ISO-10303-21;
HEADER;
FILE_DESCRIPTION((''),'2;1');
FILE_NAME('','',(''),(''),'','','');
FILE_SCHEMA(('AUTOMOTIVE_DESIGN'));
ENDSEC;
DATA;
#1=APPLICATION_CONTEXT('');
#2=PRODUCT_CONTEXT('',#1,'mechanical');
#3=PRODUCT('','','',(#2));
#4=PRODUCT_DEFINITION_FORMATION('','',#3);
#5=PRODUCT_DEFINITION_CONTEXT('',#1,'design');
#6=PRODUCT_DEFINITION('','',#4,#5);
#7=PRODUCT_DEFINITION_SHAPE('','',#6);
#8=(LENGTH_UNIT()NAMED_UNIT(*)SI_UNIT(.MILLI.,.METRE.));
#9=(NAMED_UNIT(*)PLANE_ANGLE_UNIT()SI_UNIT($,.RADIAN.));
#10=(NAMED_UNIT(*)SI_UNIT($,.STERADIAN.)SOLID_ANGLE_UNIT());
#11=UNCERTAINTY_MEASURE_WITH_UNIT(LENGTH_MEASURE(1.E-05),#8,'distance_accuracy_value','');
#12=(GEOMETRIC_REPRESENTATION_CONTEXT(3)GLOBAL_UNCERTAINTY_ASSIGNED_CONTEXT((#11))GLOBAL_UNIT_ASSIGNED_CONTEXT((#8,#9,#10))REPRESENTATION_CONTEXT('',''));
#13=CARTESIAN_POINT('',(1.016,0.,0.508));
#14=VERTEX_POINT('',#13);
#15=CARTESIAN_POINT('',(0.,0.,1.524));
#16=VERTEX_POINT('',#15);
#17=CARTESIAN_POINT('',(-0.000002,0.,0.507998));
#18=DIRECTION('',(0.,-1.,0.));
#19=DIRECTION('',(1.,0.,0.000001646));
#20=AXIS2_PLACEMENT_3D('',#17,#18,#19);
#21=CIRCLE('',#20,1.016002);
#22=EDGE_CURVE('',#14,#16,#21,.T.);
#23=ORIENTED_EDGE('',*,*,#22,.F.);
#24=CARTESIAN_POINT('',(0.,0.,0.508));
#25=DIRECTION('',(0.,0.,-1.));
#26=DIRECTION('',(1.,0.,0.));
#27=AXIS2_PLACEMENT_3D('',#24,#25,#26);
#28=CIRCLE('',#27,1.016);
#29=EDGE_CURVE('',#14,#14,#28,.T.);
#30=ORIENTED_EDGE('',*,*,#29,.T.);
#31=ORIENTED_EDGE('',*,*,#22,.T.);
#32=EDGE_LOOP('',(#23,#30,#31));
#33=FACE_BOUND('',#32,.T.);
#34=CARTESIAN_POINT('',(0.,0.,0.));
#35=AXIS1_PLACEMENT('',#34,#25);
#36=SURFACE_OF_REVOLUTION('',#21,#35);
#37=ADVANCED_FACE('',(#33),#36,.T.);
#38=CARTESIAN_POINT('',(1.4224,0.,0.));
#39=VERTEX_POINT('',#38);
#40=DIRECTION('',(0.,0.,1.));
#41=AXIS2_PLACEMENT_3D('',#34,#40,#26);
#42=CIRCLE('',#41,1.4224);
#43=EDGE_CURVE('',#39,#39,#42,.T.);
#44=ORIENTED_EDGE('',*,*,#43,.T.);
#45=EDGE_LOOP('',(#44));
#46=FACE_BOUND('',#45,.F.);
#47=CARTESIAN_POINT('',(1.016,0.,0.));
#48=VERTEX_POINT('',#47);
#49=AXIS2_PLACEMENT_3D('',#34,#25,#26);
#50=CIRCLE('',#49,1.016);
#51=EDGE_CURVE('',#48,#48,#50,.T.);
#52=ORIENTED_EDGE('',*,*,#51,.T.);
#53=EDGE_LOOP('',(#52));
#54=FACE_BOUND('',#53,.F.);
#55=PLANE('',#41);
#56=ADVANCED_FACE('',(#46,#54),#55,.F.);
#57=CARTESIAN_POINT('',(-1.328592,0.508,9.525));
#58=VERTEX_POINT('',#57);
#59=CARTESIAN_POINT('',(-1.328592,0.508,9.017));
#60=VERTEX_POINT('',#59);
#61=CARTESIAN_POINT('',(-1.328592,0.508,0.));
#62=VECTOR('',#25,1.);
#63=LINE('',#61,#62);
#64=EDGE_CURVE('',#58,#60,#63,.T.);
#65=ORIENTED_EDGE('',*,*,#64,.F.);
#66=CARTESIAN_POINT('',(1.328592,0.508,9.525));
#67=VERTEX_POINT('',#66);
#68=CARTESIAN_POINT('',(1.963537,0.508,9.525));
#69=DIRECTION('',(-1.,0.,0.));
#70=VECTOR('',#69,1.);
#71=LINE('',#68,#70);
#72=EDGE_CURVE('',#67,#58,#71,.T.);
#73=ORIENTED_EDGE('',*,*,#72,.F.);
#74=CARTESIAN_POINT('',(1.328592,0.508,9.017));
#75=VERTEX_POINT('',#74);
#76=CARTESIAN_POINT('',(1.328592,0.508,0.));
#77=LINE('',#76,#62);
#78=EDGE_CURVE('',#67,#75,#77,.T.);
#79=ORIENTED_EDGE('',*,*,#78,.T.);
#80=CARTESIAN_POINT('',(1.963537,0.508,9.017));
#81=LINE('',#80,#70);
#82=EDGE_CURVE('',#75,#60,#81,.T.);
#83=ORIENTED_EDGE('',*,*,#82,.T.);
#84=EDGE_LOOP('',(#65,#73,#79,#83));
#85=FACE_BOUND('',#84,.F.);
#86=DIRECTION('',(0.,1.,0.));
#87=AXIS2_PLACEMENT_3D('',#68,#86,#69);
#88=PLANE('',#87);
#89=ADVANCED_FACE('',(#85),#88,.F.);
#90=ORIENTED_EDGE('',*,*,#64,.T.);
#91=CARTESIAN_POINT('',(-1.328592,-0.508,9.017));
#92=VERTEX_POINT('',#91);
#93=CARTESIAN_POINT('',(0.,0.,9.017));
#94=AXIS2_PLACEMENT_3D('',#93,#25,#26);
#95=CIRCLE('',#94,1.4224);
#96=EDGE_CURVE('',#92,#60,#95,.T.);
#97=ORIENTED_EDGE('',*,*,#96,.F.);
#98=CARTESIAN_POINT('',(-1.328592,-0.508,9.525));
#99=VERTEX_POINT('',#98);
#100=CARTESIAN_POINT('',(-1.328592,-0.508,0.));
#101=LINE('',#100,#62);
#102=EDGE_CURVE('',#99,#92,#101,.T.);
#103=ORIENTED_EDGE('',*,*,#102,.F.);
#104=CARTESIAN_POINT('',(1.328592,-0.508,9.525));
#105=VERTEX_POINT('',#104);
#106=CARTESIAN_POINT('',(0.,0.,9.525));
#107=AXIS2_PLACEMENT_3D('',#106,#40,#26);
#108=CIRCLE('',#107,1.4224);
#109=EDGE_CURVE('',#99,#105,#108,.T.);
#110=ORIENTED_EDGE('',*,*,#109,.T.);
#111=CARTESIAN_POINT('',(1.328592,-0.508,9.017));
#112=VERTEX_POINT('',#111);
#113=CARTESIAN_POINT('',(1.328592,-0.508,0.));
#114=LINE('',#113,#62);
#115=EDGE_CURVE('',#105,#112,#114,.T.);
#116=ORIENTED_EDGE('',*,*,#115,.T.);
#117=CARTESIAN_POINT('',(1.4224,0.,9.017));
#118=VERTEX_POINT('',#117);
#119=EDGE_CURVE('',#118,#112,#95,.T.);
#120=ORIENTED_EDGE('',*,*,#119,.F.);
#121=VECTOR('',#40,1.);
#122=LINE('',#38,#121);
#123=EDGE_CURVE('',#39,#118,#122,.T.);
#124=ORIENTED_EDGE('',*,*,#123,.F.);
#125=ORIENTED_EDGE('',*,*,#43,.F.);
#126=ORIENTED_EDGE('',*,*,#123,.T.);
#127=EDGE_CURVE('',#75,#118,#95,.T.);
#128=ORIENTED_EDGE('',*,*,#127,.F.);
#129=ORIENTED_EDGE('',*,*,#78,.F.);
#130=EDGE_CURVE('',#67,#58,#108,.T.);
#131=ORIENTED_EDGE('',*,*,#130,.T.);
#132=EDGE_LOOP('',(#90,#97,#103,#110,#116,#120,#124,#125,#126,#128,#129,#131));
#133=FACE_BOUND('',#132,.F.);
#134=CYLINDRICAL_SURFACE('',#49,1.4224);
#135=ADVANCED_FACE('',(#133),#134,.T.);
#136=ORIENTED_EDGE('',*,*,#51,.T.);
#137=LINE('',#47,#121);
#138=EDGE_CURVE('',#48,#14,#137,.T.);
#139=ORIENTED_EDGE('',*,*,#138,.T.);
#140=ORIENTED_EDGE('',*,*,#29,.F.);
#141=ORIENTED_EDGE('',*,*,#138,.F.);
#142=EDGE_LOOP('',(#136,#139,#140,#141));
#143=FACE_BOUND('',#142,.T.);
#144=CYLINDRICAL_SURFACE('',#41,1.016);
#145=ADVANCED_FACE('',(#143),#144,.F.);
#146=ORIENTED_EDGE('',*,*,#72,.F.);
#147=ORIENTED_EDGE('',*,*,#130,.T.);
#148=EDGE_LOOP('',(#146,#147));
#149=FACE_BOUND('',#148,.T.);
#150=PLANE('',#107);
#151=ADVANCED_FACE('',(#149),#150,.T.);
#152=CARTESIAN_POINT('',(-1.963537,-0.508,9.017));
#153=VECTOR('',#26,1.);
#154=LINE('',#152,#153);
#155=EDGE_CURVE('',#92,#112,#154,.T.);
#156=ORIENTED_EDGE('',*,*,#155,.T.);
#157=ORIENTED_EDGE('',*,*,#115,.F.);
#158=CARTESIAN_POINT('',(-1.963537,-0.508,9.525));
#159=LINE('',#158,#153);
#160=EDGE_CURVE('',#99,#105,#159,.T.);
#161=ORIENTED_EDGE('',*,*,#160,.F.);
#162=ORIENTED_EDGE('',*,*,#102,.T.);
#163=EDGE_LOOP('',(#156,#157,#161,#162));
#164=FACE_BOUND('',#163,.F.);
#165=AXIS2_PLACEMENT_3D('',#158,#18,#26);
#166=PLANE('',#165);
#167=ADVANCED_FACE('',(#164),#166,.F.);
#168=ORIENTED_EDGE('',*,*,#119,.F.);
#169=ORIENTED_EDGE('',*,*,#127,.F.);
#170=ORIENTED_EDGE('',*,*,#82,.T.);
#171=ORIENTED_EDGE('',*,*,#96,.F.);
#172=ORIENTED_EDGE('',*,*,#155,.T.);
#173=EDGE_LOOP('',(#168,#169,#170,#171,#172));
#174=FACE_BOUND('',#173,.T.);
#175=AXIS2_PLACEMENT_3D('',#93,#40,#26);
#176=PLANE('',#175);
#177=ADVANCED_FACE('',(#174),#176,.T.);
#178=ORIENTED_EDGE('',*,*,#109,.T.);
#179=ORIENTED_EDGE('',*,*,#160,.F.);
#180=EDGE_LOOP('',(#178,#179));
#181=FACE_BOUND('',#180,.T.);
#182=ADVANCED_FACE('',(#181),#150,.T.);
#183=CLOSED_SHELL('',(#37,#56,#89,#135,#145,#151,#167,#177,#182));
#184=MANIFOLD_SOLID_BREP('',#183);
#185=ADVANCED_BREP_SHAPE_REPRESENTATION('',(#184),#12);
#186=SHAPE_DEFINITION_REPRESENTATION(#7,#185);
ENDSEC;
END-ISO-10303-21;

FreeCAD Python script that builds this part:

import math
import FreeCAD as App
import Part
import Sketcher
from FreeCAD import Vector
Q = App.Units.Quantity

doc = App.newDocument("Part")
body = doc.addObject("PartDesign::Body", "Body")

sketch1 = body.newObject("Sketcher::SketchObject", "Sketch")
sketch1.AttachmentSupport = (doc.getObject("XY_Plane"), [""])
sketch1.MapMode = "FlatFace"
sketch1.addGeometry(Part.Circle(Vector(0, 0, 0), Vector(0, 0, 1), 1.4), False)
sketch1.addConstraint(Sketcher.Constraint("Coincident", 0, 3, -1, 1))
sketch1.addConstraint(Sketcher.Constraint("Diameter", 0, Q("0.112 in")))
pad1 = body.newObject("PartDesign::Pad", "Pad")
pad1.Profile = sketch1
pad1.Length = Q("0.375 in")

sketch2 = body.newObject("Sketcher::SketchObject", "Sketch001")
sketch2.AttachmentSupport = (doc.getObject("XZ_Plane"), [""])
sketch2.MapMode = "FlatFace"
sketch2.addGeometry(Part.LineSegment(Vector(0, 1.5, 0), Vector(0, 0, 0)), False)
sketch2.addGeometry(Part.LineSegment(Vector(0, 0, 0), Vector(1, 0, 0)), False)
sketch2.addGeometry(Part.LineSegment(Vector(1, 0, 0), Vector(1, 0.5, 0)), False)
sketch2.addGeometry(Part.ArcOfCircle(Part.Circle(Vector(0, 0.5, 0), Vector(0, 0, 1), 1), math.radians(0), math.radians(90)), False)
sketch2.addConstraint(Sketcher.Constraint("Coincident", 0, 2, 1, 1))
sketch2.addConstraint(Sketcher.Constraint("Coincident", 1, 2, 2, 1))
sketch2.addConstraint(Sketcher.Constraint("Tangent", 2, 2, 3, 1))
sketch2.addConstraint(Sketcher.Constraint("Coincident", 3, 2, 0, 1))
sketch2.addConstraint(Sketcher.Constraint("Vertical", 0))
sketch2.addConstraint(Sketcher.Constraint("Horizontal", 1))
sketch2.addConstraint(Sketcher.Constraint("Vertical", 2))
sketch2.addConstraint(Sketcher.Constraint("Coincident", 0, 2, -1, 1))
sketch2.addConstraint(Sketcher.Constraint("PointOnObject", 3, 3, -2))
sketch2.addConstraint(Sketcher.Constraint("Radius", 3, Q("0.0400001 in")))
sketch2.addConstraint(Sketcher.Constraint("DistanceY", 0, 2, 0, 1, Q("0.06 in")))
groove = body.newObject("PartDesign::Groove", "Groove")
groove.Profile = sketch2
groove.ReferenceAxis = (sketch2, ["V_Axis"])
groove.Angle = 360

sketch3 = body.newObject("Sketcher::SketchObject", "Sketch002")
sketch3.AttachmentSupport = (doc.getObject("XY_Plane"), [""])
sketch3.MapMode = "FlatFace"
sketch3.AttachmentOffset = App.Placement(Vector(0, 0, 0.375 * 25.4), App.Rotation())
sketch3.addGeometry(Part.LineSegment(Vector(2, 0.5, 0), Vector(-2, 0.5, 0)), False)
sketch3.addGeometry(Part.LineSegment(Vector(-2, 0.5, 0), Vector(-2, -0.5, 0)), False)
sketch3.addGeometry(Part.LineSegment(Vector(-2, -0.5, 0), Vector(2, -0.5, 0)), False)
sketch3.addGeometry(Part.LineSegment(Vector(2, -0.5, 0), Vector(2, 0.5, 0)), False)
sketch3.addConstraint(Sketcher.Constraint("Coincident", 0, 2, 1, 1))
sketch3.addConstraint(Sketcher.Constraint("Coincident", 1, 2, 2, 1))
sketch3.addConstraint(Sketcher.Constraint("Coincident", 2, 2, 3, 1))
sketch3.addConstraint(Sketcher.Constraint("Coincident", 3, 2, 0, 1))
sketch3.addConstraint(Sketcher.Constraint("Horizontal", 0))
sketch3.addConstraint(Sketcher.Constraint("Vertical", 1))
sketch3.addConstraint(Sketcher.Constraint("Horizontal", 2))
sketch3.addConstraint(Sketcher.Constraint("Vertical", 3))
sketch3.addConstraint(Sketcher.Constraint("Symmetric", 0, 2, 2, 2, -1, 1))
sketch3.addConstraint(Sketcher.Constraint("DistanceY", 1, 2, 1, 1, Q("0.04 in")))
sketch3.addConstraint(Sketcher.Constraint("DistanceX", 0, 2, 0, 1, Q("3.927074 mm")))
pocket1 = body.newObject("PartDesign::Pocket", "Pocket")
pocket1.Profile = sketch3
pocket1.Length = Q("0.02 in")

doc.recompute()
